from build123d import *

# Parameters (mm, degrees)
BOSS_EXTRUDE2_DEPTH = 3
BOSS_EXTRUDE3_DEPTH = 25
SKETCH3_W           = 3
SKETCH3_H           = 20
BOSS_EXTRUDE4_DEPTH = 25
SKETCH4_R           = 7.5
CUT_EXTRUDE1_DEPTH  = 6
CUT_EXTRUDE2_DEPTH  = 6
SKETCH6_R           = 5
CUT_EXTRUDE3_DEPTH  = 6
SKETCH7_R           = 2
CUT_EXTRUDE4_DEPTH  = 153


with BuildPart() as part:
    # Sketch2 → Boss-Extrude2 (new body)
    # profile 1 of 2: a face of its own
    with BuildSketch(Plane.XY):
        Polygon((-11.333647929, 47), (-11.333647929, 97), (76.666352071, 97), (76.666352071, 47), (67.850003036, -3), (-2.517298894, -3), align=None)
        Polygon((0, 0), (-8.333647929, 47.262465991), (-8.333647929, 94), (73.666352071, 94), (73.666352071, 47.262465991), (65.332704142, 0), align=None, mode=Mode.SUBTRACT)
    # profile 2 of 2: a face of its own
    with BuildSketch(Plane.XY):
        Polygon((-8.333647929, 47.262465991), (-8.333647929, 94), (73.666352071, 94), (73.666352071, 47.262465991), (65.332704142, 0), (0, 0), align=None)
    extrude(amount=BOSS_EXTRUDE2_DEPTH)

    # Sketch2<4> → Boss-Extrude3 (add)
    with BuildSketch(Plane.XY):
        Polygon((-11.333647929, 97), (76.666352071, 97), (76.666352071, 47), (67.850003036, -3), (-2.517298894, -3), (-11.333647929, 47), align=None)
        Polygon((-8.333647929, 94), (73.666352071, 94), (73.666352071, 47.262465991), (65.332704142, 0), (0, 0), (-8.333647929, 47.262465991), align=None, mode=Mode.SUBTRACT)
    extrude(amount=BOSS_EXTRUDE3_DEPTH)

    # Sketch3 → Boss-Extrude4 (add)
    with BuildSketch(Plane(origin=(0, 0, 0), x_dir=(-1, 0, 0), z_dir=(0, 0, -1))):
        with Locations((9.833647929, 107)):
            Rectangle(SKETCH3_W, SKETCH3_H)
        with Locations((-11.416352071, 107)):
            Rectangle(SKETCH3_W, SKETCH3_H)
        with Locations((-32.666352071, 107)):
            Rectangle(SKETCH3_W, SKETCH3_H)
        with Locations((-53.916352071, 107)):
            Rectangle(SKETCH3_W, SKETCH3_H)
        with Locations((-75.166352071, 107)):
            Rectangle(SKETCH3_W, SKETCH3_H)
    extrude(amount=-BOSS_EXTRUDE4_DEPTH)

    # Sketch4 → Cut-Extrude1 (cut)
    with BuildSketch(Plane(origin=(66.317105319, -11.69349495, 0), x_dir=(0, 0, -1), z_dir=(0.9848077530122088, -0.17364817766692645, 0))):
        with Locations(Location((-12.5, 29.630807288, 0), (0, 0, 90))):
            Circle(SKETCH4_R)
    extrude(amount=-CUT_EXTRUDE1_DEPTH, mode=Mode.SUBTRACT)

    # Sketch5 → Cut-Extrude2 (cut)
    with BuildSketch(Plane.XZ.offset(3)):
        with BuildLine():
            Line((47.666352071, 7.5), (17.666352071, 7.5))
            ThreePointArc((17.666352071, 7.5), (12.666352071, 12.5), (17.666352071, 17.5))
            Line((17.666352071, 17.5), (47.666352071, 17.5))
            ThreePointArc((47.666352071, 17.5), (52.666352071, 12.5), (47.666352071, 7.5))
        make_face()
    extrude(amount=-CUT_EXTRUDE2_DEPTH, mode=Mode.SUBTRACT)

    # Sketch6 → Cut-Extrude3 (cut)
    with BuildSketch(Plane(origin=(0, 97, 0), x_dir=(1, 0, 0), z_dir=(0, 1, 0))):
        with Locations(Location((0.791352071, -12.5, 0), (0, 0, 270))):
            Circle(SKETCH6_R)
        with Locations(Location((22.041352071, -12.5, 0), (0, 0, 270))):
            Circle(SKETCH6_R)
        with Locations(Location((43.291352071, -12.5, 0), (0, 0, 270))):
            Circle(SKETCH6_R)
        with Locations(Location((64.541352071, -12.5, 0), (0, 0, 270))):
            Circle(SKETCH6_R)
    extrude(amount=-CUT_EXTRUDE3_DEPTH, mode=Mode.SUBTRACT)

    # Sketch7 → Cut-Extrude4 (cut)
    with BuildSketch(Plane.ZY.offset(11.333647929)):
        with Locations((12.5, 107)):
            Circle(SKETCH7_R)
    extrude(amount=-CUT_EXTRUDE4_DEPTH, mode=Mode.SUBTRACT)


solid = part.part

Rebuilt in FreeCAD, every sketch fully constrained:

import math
import FreeCAD as App
import Part
import Sketcher
from FreeCAD import Vector
Q = App.Units.Quantity

doc = App.newDocument("Part")
body = doc.addObject("PartDesign::Body", "Body")

# Sketch on XY plane
sketch1 = body.newObject("Sketcher::SketchObject", "Sketch")
sketch1.AttachmentSupport = (doc.getObject("XY_Plane"), [""])
sketch1.MapMode = "FlatFace"
sketch1.addGeometry([
    Part.LineSegment(Vector(-11, 97, 0), Vector(-11, 47, 0)),  # 0
    Part.LineSegment(Vector(-11, 47, 0), Vector(-3, -3, 0)),  # 1
    Part.LineSegment(Vector(-3, -3, 0), Vector(68, -3, 0)),  # 2
    Part.LineSegment(Vector(68, -3, 0), Vector(77, 47, 0)),  # 3
    Part.LineSegment(Vector(77, 47, 0), Vector(77, 97, 0)),  # 4
    Part.LineSegment(Vector(77, 97, 0), Vector(-11, 97, 0)),  # 5
], False)
sketch1.addConstraint([
    Sketcher.Constraint("Coincident", 0, 2, 1, 1),
    Sketcher.Constraint("Coincident", 1, 2, 2, 1),
    Sketcher.Constraint("Coincident", 2, 2, 3, 1),
    Sketcher.Constraint("Coincident", 3, 2, 4, 1),
    Sketcher.Constraint("Coincident", 4, 2, 5, 1),
    Sketcher.Constraint("Coincident", 5, 2, 0, 1),
    Sketcher.Constraint("Vertical", 0),
    Sketcher.Constraint("Horizontal", 2),
    Sketcher.Constraint("Vertical", 4),
    Sketcher.Constraint("Horizontal", 5),
    Sketcher.Constraint("Horizontal", 0, 2, 3, 2),
    Sketcher.Constraint("Equal", 1, 3),
    Sketcher.Constraint("DistanceX", 5, 2, 5, 1, 88.0),
    Sketcher.Constraint("DistanceY", 0, 2, 0, 1, 50.0),
    Sketcher.Constraint("Angle", 1, Q("-80 deg")),
    Sketcher.Constraint("DistanceY", -1, 1, 0, 2, 47.0),
    Sketcher.Constraint("DistanceY", 1, 2, -1, 1, 3.0),
    Sketcher.Constraint("DistanceX", 1, 2, -1, 1, 2.517299),
])
pad1 = body.newObject("PartDesign::Pad", "Pad")
pad1.Profile = sketch1
pad1.Length = 3

# Sketch on XY plane
sketch2 = body.newObject("Sketcher::SketchObject", "Sketch001")
sketch2.AttachmentSupport = (doc.getObject("XY_Plane"), [""])
sketch2.MapMode = "FlatFace"
sketch2.addGeometry([
    Part.LineSegment(Vector(77, 97, 0), Vector(-11, 97, 0)),  # 0
    Part.LineSegment(Vector(-11, 97, 0), Vector(-11, 47, 0)),  # 1
    Part.LineSegment(Vector(-11, 47, 0), Vector(-3, -3, 0)),  # 2
    Part.LineSegment(Vector(-3, -3, 0), Vector(68, -3, 0)),  # 3
    Part.LineSegment(Vector(68, -3, 0), Vector(77, 47, 0)),  # 4
    Part.LineSegment(Vector(77, 47, 0), Vector(77, 97, 0)),  # 5
    Part.LineSegment(Vector(-8, 94, 0), Vector(74, 94, 0)),  # 6
    Part.LineSegment(Vector(74, 94, 0), Vector(74, 47, 0)),  # 7
    Part.LineSegment(Vector(74, 47, 0), Vector(65, 0, 0)),  # 8
    Part.LineSegment(Vector(65, 0, 0), Vector(0, 0, 0)),  # 9
    Part.LineSegment(Vector(0, 0, 0), Vector(-8, 47, 0)),  # 10
    Part.LineSegment(Vector(-8, 47, 0), Vector(-8, 94, 0)),  # 11
], False)
sketch2.addConstraint([
    Sketcher.Constraint("Coincident", 0, 2, 1, 1),
    Sketcher.Constraint("Coincident", 1, 2, 2, 1),
    Sketcher.Constraint("Coincident", 2, 2, 3, 1),
    Sketcher.Constraint("Coincident", 3, 2, 4, 1),
    Sketcher.Constraint("Coincident", 4, 2, 5, 1),
    Sketcher.Constraint("Coincident", 5, 2, 0, 1),
    Sketcher.Constraint("Coincident", 6, 2, 7, 1),
    Sketcher.Constraint("Coincident", 7, 2, 8, 1),
    Sketcher.Constraint("Coincident", 8, 2, 9, 1),
    Sketcher.Constraint("Coincident", 9, 2, 10, 1),
    Sketcher.Constraint("Coincident", 10, 2, 11, 1),
    Sketcher.Constraint("Coincident", 11, 2, 6, 1),
    Sketcher.Constraint("Horizontal", 0),
    Sketcher.Constraint("Vertical", 1),
    Sketcher.Constraint("Horizontal", 3),
    Sketcher.Constraint("Vertical", 5),
    Sketcher.Constraint("Horizontal", 6),
    Sketcher.Constraint("Vertical", 7),
    Sketcher.Constraint("Horizontal", 9),
    Sketcher.Constraint("Vertical", 11),
    Sketcher.Constraint("Coincident", 9, 2, -1, 1),
    Sketcher.Constraint("Parallel", 4, 8),
    Sketcher.Constraint("Parallel", 2, 10),
    Sketcher.Constraint("Horizontal", 1, 2, 4, 2),
    Sketcher.Constraint("Horizontal", 7, 2, 10, 2),
    Sketcher.Constraint("Equal", 2, 4),
    Sketcher.Constraint("DistanceX", 0, 2, 0, 1, 88.0),
    Sketcher.Constraint("DistanceX", 6, 1, 6, 2, 82.0),
    Sketcher.Constraint("DistanceY", 1, 2, 1, 1, 50.0),
    Sketcher.Constraint("Angle", 2, Q("-80 deg")),
    Sketcher.Constraint("DistanceY", -1, 1, 0, 2, 97.0),
    Sketcher.Constraint("DistanceY", 2, 2, -1, 1, 3.0),
    Sketcher.Constraint("DistanceY", -1, 1, 6, 2, 94.0),
    Sketcher.Constraint("DistanceX", 6, 2, 5, 2, 3.0),
    Sketcher.Constraint("DistanceX", 2, 2, -1, 1, 2.517299),
])
pad2 = body.newObject("PartDesign::Pad", "Pad001")
pad2.Profile = sketch2
pad2.Length = 25

# Sketch on XY plane
sketch3 = body.newObject("Sketcher::SketchObject", "Sketch002")
sketch3.AttachmentSupport = (doc.getObject("XY_Plane"), [""])
sketch3.MapMode = "FlatFace"
sketch3.addGeometry([
    Part.LineSegment(Vector(-8.3, 117, 0), Vector(-8.3, 97, 0)),  # 0
    Part.LineSegment(Vector(-8.3, 97, 0), Vector(-11.3, 97, 0)),  # 1
    Part.LineSegment(Vector(-11.3, 97, 0), Vector(-11.3, 117, 0)),  # 2
    Part.LineSegment(Vector(-11.3, 117, 0), Vector(-8.3, 117, 0)),  # 3
    Part.LineSegment(Vector(12.9, 117, 0), Vector(12.9, 97, 0)),  # 4
    Part.LineSegment(Vector(12.9, 97, 0), Vector(9.9, 97, 0)),  # 5
    Part.LineSegment(Vector(9.9, 97, 0), Vector(9.9, 117, 0)),  # 6
    Part.LineSegment(Vector(9.9, 117, 0), Vector(12.9, 117, 0)),  # 7
    Part.LineSegment(Vector(34.2, 117, 0), Vector(34.2, 97, 0)),  # 8
    Part.LineSegment(Vector(34.2, 97, 0), Vector(31.2, 97, 0)),  # 9
    Part.LineSegment(Vector(31.2, 97, 0), Vector(31.2, 117, 0)),  # 10
    Part.LineSegment(Vector(31.2, 117, 0), Vector(34.2, 117, 0)),  # 11
    Part.LineSegment(Vector(55.4, 117, 0), Vector(55.4, 97, 0)),  # 12
    Part.LineSegment(Vector(55.4, 97, 0), Vector(52.4, 97, 0)),  # 13
    Part.LineSegment(Vector(52.4, 97, 0), Vector(52.4, 117, 0)),  # 14
    Part.LineSegment(Vector(52.4, 117, 0), Vector(55.4, 117, 0)),  # 15
    Part.LineSegment(Vector(76.7, 117, 0), Vector(76.7, 97, 0)),  # 16
    Part.LineSegment(Vector(76.7, 97, 0), Vector(73.7, 97, 0)),  # 17
    Part.LineSegment(Vector(73.7, 97, 0), Vector(73.7, 117, 0)),  # 18
    Part.LineSegment(Vector(73.7, 117, 0), Vector(76.7, 117, 0)),  # 19
], False)
sketch3.addConstraint([
    Sketcher.Constraint("Coincident", 0, 2, 1, 1),
    Sketcher.Constraint("Coincident", 1, 2, 2, 1),
    Sketcher.Constraint("Coincident", 2, 2, 3, 1),
    Sketcher.Constraint("Coincident", 3, 2, 0, 1),
    Sketcher.Constraint("Coincident", 4, 2, 5, 1),
    Sketcher.Constraint("Coincident", 5, 2, 6, 1),
    Sketcher.Constraint("Coincident", 6, 2, 7, 1),
    Sketcher.Constraint("Coincident", 7, 2, 4, 1),
    Sketcher.Constraint("Coincident", 8, 2, 9, 1),
    Sketcher.Constraint("Coincident", 9, 2, 10, 1),
    Sketcher.Constraint("Coincident", 10, 2, 11, 1),
    Sketcher.Constraint("Coincident", 11, 2, 8, 1),
    Sketcher.Constraint("Coincident", 12, 2, 13, 1),
    Sketcher.Constraint("Coincident", 13, 2, 14, 1),
    Sketcher.Constraint("Coincident", 14, 2, 15, 1),
    Sketcher.Constraint("Coincident", 15, 2, 12, 1),
    Sketcher.Constraint("Coincident", 16, 2, 17, 1),
    Sketcher.Constraint("Coincident", 17, 2, 18, 1),
    Sketcher.Constraint("Coincident", 18, 2, 19, 1),
    Sketcher.Constraint("Coincident", 19, 2, 16, 1),
    Sketcher.Constraint("Vertical", 0),
    Sketcher.Constraint("Horizontal", 1),
    Sketcher.Constraint("Vertical", 2),
    Sketcher.Constraint("Horizontal", 3),
    Sketcher.Constraint("Vertical", 4),
    Sketcher.Constraint("Horizontal", 5),
    Sketcher.Constraint("Vertical", 6),
    Sketcher.Constraint("Horizontal", 7),
    Sketcher.Constraint("Vertical", 8),
    Sketcher.Constraint("Horizontal", 9),
    Sketcher.Constraint("Vertical", 10),
    Sketcher.Constraint("Horizontal", 11),
    Sketcher.Constraint("Vertical", 12),
    Sketcher.Constraint("Horizontal", 13),
    Sketcher.Constraint("Vertical", 14),
    Sketcher.Constraint("Horizontal", 15),
    Sketcher.Constraint("Vertical", 16),
    Sketcher.Constraint("Horizontal", 17),
    Sketcher.Constraint("Vertical", 18),
    Sketcher.Constraint("Horizontal", 19),
    Sketcher.Constraint("Horizontal", 1, 2, 4, 2),
    Sketcher.Constraint("Horizontal", 3, 2, 6, 2),
    Sketcher.Constraint("Horizontal", 5, 2, 8, 2),
    Sketcher.Constraint("Horizontal", 7, 2, 10, 2),
    Sketcher.Constraint("Horizontal", 9, 2, 12, 2),
    Sketcher.Constraint("Horizontal", 11, 2, 14, 2),
    Sketcher.Constraint("Horizontal", 13, 2, 16, 2),
    Sketcher.Constraint("Horizontal", 15, 2, 18, 2),
    Sketcher.Constraint("Equal", 3, 5),
    Sketcher.Constraint("Equal", 7, 9),
    Sketcher.Constraint("Equal", 11, 13),
    Sketcher.Constraint("Equal", 15, 17),
    Sketcher.Constraint("DistanceX", 1, 2, 1, 1, 3.0),
    Sketcher.Constraint("DistanceY", 0, 2, 0, 1, 20.0),
    Sketcher.Constraint("DistanceY", -1, 1, 0, 2, 97.0),
    Sketcher.Constraint("DistanceX", 0, 2, 8, 2, 42.5),
    Sketcher.Constraint("DistanceX", 4, 2, 12, 2, 42.5),
    Sketcher.Constraint("DistanceX", 8, 2, 16, 2, 42.5),
    Sketcher.Constraint("DistanceX", 0, 2, 4, 2, 21.25),
    Sketcher.Constraint("DistanceX", 0, 2, -1, 1, 8.333648),
])
pad3 = body.newObject("PartDesign::Pad", "Pad002")
pad3.Profile = sketch3
pad3.Length = 25

# Sketch on an angled plane
sketch4 = body.newObject("Sketcher::SketchObject", "Sketch003")
sketch4.Placement = App.Placement(Vector(66.317105, -11.693495, 0), App.Rotation(Vector(0, 0, -1), Vector(0.173648178, 0.984807753, 0), Vector(0.984807753, -0.173648178, 0), "ZXY"))
sketch4.addGeometry(Part.Circle(Vector(-12, 30, 0), Vector(0, 0, 1), 8), False)
sketch4.addConstraint([
    Sketcher.Constraint("Diameter", 0, 15.0),
    Sketcher.Constraint("DistanceX", 0, 3, -1, 1, 12.5),
    Sketcher.Constraint("DistanceY", -1, 1, 0, 3, 29.630807),
])
pocket1 = body.newObject("PartDesign::Pocket", "Pocket")
pocket1.Profile = sketch4
pocket1.Length = 6

# Sketch on XZ plane
sketch5 = body.newObject("Sketcher::SketchObject", "Sketch004")
sketch5.AttachmentSupport = (doc.getObject("XZ_Plane"), [""])
sketch5.MapMode = "FlatFace"
sketch5.AttachmentOffset = App.Placement(Vector(0, 0, 3), App.Rotation())
sketch5.addGeometry([
    Part.LineSegment(Vector(18, 8, 0), Vector(48, 8, 0)),
    Part.ArcOfCircle(Part.Circle(Vector(48, 12, 0), Vector(0, 0, 1), 5), math.radians(-90), math.radians(90)),
    Part.LineSegment(Vector(48, 18, 0), Vector(18, 18, 0)),
    Part.ArcOfCircle(Part.Circle(Vector(18, 12, 0), Vector(0, 0, 1), 5), math.radians(90), math.radians(270)),
], False)
sketch5.addConstraint([
    Sketcher.Constraint("Tangent", 0, 2, 1, 1),
    Sketcher.Constraint("Tangent", 1, 2, 2, 1),
    Sketcher.Constraint("Tangent", 2, 2, 3, 1),
    Sketcher.Constraint("Tangent", 3, 2, 0, 1),
    Sketcher.Constraint("Horizontal", 0),
    Sketcher.Constraint("Horizontal", 2),
    Sketcher.Constraint("Radius", 1, 5.0),
    Sketcher.Constraint("DistanceX", 0, 1, 0, 2, 30.0),
    Sketcher.Constraint("DistanceY", -1, 1, 1, 3, 12.5),
    Sketcher.Constraint("DistanceX", -1, 1, 1, 3, 47.666352),
])
pocket2 = body.newObject("PartDesign::Pocket", "Pocket001")
pocket2.Profile = sketch5
pocket2.Length = 6

# Sketch on XZ plane
sketch6 = body.newObject("Sketcher::SketchObject", "Sketch005")
sketch6.AttachmentSupport = (doc.getObject("XZ_Plane"), [""])
sketch6.MapMode = "FlatFace"
sketch6.AttachmentOffset = App.Placement(Vector(0, 0, -97), App.Rotation())
sketch6.addGeometry([
    Part.Circle(Vector(1, 12, 0), Vector(0, 0, 1), 5),
    Part.Circle(Vector(22, 12, 0), Vector(0, 0, 1), 5),
    Part.Circle(Vector(43, 12, 0), Vector(0, 0, 1), 5),
    Part.Circle(Vector(65, 12, 0), Vector(0, 0, 1), 5),
], False)
sketch6.addConstraint([
    Sketcher.Constraint("Equal", 0, 1),
    Sketcher.Constraint("Equal", 1, 2),
    Sketcher.Constraint("Equal", 2, 3),
    Sketcher.Constraint("Horizontal", 0, 3, 1, 3),
    Sketcher.Constraint("Horizontal", 1, 3, 2, 3),
    Sketcher.Constraint("Horizontal", 2, 3, 3, 3),
    Sketcher.Constraint("Diameter", 0, 10.0),
    Sketcher.Constraint("DistanceY", -1, 1, 0, 3, 12.5),
    Sketcher.Constraint("DistanceX", 0, 3, 2, 3, 42.5),
    Sketcher.Constraint("DistanceX", 1, 3, 3, 3, 42.5),
    Sketcher.Constraint("DistanceX", 0, 3, 1, 3, 21.25),
    Sketcher.Constraint("DistanceX", -1, 1, 0, 3, 0.791352),
])
pocket3 = body.newObject("PartDesign::Pocket", "Pocket002")
pocket3.Profile = sketch6
pocket3.Length = 6
pocket3.Reversed = True

# Sketch on YZ plane
sketch7 = body.newObject("Sketcher::SketchObject", "Sketch006")
sketch7.AttachmentSupport = (doc.getObject("YZ_Plane"), [""])
sketch7.MapMode = "FlatFace"
sketch7.AttachmentOffset = App.Placement(Vector(0, 0, -11.333648), App.Rotation())
sketch7.addGeometry(Part.Circle(Vector(107, 12.5, 0), Vector(0, 0, 1), 2), False)
sketch7.addConstraint([
    Sketcher.Constraint("Diameter", 0, 4.0),
    Sketcher.Constraint("DistanceX", -1, 1, 0, 3, 107.0),
    Sketcher.Constraint("DistanceY", -1, 1, 0, 3, 12.5),
])
pocket4 = body.newObject("PartDesign::Pocket", "Pocket003")
pocket4.Profile = sketch7
pocket4.Length = 153
pocket4.Reversed = True

doc.recompute()
